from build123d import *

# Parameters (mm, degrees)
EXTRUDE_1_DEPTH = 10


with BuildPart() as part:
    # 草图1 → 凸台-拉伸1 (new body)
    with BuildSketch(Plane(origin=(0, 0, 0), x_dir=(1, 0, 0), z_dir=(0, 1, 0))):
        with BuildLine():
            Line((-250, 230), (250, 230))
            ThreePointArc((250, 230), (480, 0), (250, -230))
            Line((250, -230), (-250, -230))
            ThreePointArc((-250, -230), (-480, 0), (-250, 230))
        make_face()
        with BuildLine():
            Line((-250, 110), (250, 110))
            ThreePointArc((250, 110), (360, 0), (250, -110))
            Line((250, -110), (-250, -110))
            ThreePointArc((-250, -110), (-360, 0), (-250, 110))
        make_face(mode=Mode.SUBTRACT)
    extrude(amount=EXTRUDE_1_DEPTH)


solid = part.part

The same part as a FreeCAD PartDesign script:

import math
import FreeCAD as App
import Part
import Sketcher

V = App.Vector
Q = App.Units.Quantity

doc = App.newDocument("Part")
body = doc.addObject("PartDesign::Body", "Body")

# Sketch on XZ plane
sketch1 = body.newObject("Sketcher::SketchObject", "Sketch")
sketch1.AttachmentSupport = (doc.getObject("XZ_Plane"), [""])
sketch1.MapMode = "FlatFace"
sketch1.addGeometry([
    Part.LineSegment(V(250, -230, 0), V(-250, -230, 0)),  # 0
    Part.ArcOfCircle(Part.Circle(V(-250, 0, 0), V(0, 0, 1), 230), math.radians(90), math.radians(270)),  # 1
    Part.LineSegment(V(-250, 230, 0), V(250, 230, 0)),  # 2
    Part.ArcOfCircle(Part.Circle(V(250, 0, 0), V(0, 0, 1), 230), math.radians(-90), math.radians(90)),  # 3
    Part.LineSegment(V(-250, -110, 0), V(250, -110, 0)),  # 4
    Part.ArcOfCircle(Part.Circle(V(250, 0, 0), V(0, 0, 1), 110), math.radians(-90), math.radians(90)),  # 5
    Part.LineSegment(V(250, 110, 0), V(-250, 110, 0)),  # 6
    Part.ArcOfCircle(Part.Circle(V(-250, 0, 0), V(0, 0, 1), 110), math.radians(90), math.radians(270)),  # 7
], False)
sketch1.addConstraint([
    Sketcher.Constraint("Tangent", 0, 2, 1, 2),
    Sketcher.Constraint("Tangent", 1, 1, 2, 1),
    Sketcher.Constraint("Tangent", 2, 2, 3, 2),
    Sketcher.Constraint("Tangent", 3, 1, 0, 1),
    Sketcher.Constraint("Tangent", 4, 2, 5, 1),
    Sketcher.Constraint("Tangent", 5, 2, 6, 1),
    Sketcher.Constraint("Tangent", 6, 2, 7, 1),
    Sketcher.Constraint("Tangent", 7, 2, 4, 1),
    Sketcher.Constraint("Horizontal", 0),
    Sketcher.Constraint("Horizontal", 2),
    Sketcher.Constraint("Horizontal", 4),
    Sketcher.Constraint("Horizontal", 6),
    Sketcher.Constraint("Coincident", 5, 3, 3, 3),
    Sketcher.Constraint("Symmetric", 1, 3, 3, 3, -1, 1),
    Sketcher.Constraint("Vertical", 7, 3, 0, 2),
    Sketcher.Constraint("Radius", 1, Q("230 mm")),
    Sketcher.Constraint("Radius", 5, Q("110 mm")),
    Sketcher.Constraint("DistanceX", 0, 2, 0, 1, Q("500 mm")),
])
pad1 = body.newObject("PartDesign::Pad", "Pad")
pad1.Profile = sketch1
pad1.Length = 10
pad1.Reversed = True

doc.recompute()
